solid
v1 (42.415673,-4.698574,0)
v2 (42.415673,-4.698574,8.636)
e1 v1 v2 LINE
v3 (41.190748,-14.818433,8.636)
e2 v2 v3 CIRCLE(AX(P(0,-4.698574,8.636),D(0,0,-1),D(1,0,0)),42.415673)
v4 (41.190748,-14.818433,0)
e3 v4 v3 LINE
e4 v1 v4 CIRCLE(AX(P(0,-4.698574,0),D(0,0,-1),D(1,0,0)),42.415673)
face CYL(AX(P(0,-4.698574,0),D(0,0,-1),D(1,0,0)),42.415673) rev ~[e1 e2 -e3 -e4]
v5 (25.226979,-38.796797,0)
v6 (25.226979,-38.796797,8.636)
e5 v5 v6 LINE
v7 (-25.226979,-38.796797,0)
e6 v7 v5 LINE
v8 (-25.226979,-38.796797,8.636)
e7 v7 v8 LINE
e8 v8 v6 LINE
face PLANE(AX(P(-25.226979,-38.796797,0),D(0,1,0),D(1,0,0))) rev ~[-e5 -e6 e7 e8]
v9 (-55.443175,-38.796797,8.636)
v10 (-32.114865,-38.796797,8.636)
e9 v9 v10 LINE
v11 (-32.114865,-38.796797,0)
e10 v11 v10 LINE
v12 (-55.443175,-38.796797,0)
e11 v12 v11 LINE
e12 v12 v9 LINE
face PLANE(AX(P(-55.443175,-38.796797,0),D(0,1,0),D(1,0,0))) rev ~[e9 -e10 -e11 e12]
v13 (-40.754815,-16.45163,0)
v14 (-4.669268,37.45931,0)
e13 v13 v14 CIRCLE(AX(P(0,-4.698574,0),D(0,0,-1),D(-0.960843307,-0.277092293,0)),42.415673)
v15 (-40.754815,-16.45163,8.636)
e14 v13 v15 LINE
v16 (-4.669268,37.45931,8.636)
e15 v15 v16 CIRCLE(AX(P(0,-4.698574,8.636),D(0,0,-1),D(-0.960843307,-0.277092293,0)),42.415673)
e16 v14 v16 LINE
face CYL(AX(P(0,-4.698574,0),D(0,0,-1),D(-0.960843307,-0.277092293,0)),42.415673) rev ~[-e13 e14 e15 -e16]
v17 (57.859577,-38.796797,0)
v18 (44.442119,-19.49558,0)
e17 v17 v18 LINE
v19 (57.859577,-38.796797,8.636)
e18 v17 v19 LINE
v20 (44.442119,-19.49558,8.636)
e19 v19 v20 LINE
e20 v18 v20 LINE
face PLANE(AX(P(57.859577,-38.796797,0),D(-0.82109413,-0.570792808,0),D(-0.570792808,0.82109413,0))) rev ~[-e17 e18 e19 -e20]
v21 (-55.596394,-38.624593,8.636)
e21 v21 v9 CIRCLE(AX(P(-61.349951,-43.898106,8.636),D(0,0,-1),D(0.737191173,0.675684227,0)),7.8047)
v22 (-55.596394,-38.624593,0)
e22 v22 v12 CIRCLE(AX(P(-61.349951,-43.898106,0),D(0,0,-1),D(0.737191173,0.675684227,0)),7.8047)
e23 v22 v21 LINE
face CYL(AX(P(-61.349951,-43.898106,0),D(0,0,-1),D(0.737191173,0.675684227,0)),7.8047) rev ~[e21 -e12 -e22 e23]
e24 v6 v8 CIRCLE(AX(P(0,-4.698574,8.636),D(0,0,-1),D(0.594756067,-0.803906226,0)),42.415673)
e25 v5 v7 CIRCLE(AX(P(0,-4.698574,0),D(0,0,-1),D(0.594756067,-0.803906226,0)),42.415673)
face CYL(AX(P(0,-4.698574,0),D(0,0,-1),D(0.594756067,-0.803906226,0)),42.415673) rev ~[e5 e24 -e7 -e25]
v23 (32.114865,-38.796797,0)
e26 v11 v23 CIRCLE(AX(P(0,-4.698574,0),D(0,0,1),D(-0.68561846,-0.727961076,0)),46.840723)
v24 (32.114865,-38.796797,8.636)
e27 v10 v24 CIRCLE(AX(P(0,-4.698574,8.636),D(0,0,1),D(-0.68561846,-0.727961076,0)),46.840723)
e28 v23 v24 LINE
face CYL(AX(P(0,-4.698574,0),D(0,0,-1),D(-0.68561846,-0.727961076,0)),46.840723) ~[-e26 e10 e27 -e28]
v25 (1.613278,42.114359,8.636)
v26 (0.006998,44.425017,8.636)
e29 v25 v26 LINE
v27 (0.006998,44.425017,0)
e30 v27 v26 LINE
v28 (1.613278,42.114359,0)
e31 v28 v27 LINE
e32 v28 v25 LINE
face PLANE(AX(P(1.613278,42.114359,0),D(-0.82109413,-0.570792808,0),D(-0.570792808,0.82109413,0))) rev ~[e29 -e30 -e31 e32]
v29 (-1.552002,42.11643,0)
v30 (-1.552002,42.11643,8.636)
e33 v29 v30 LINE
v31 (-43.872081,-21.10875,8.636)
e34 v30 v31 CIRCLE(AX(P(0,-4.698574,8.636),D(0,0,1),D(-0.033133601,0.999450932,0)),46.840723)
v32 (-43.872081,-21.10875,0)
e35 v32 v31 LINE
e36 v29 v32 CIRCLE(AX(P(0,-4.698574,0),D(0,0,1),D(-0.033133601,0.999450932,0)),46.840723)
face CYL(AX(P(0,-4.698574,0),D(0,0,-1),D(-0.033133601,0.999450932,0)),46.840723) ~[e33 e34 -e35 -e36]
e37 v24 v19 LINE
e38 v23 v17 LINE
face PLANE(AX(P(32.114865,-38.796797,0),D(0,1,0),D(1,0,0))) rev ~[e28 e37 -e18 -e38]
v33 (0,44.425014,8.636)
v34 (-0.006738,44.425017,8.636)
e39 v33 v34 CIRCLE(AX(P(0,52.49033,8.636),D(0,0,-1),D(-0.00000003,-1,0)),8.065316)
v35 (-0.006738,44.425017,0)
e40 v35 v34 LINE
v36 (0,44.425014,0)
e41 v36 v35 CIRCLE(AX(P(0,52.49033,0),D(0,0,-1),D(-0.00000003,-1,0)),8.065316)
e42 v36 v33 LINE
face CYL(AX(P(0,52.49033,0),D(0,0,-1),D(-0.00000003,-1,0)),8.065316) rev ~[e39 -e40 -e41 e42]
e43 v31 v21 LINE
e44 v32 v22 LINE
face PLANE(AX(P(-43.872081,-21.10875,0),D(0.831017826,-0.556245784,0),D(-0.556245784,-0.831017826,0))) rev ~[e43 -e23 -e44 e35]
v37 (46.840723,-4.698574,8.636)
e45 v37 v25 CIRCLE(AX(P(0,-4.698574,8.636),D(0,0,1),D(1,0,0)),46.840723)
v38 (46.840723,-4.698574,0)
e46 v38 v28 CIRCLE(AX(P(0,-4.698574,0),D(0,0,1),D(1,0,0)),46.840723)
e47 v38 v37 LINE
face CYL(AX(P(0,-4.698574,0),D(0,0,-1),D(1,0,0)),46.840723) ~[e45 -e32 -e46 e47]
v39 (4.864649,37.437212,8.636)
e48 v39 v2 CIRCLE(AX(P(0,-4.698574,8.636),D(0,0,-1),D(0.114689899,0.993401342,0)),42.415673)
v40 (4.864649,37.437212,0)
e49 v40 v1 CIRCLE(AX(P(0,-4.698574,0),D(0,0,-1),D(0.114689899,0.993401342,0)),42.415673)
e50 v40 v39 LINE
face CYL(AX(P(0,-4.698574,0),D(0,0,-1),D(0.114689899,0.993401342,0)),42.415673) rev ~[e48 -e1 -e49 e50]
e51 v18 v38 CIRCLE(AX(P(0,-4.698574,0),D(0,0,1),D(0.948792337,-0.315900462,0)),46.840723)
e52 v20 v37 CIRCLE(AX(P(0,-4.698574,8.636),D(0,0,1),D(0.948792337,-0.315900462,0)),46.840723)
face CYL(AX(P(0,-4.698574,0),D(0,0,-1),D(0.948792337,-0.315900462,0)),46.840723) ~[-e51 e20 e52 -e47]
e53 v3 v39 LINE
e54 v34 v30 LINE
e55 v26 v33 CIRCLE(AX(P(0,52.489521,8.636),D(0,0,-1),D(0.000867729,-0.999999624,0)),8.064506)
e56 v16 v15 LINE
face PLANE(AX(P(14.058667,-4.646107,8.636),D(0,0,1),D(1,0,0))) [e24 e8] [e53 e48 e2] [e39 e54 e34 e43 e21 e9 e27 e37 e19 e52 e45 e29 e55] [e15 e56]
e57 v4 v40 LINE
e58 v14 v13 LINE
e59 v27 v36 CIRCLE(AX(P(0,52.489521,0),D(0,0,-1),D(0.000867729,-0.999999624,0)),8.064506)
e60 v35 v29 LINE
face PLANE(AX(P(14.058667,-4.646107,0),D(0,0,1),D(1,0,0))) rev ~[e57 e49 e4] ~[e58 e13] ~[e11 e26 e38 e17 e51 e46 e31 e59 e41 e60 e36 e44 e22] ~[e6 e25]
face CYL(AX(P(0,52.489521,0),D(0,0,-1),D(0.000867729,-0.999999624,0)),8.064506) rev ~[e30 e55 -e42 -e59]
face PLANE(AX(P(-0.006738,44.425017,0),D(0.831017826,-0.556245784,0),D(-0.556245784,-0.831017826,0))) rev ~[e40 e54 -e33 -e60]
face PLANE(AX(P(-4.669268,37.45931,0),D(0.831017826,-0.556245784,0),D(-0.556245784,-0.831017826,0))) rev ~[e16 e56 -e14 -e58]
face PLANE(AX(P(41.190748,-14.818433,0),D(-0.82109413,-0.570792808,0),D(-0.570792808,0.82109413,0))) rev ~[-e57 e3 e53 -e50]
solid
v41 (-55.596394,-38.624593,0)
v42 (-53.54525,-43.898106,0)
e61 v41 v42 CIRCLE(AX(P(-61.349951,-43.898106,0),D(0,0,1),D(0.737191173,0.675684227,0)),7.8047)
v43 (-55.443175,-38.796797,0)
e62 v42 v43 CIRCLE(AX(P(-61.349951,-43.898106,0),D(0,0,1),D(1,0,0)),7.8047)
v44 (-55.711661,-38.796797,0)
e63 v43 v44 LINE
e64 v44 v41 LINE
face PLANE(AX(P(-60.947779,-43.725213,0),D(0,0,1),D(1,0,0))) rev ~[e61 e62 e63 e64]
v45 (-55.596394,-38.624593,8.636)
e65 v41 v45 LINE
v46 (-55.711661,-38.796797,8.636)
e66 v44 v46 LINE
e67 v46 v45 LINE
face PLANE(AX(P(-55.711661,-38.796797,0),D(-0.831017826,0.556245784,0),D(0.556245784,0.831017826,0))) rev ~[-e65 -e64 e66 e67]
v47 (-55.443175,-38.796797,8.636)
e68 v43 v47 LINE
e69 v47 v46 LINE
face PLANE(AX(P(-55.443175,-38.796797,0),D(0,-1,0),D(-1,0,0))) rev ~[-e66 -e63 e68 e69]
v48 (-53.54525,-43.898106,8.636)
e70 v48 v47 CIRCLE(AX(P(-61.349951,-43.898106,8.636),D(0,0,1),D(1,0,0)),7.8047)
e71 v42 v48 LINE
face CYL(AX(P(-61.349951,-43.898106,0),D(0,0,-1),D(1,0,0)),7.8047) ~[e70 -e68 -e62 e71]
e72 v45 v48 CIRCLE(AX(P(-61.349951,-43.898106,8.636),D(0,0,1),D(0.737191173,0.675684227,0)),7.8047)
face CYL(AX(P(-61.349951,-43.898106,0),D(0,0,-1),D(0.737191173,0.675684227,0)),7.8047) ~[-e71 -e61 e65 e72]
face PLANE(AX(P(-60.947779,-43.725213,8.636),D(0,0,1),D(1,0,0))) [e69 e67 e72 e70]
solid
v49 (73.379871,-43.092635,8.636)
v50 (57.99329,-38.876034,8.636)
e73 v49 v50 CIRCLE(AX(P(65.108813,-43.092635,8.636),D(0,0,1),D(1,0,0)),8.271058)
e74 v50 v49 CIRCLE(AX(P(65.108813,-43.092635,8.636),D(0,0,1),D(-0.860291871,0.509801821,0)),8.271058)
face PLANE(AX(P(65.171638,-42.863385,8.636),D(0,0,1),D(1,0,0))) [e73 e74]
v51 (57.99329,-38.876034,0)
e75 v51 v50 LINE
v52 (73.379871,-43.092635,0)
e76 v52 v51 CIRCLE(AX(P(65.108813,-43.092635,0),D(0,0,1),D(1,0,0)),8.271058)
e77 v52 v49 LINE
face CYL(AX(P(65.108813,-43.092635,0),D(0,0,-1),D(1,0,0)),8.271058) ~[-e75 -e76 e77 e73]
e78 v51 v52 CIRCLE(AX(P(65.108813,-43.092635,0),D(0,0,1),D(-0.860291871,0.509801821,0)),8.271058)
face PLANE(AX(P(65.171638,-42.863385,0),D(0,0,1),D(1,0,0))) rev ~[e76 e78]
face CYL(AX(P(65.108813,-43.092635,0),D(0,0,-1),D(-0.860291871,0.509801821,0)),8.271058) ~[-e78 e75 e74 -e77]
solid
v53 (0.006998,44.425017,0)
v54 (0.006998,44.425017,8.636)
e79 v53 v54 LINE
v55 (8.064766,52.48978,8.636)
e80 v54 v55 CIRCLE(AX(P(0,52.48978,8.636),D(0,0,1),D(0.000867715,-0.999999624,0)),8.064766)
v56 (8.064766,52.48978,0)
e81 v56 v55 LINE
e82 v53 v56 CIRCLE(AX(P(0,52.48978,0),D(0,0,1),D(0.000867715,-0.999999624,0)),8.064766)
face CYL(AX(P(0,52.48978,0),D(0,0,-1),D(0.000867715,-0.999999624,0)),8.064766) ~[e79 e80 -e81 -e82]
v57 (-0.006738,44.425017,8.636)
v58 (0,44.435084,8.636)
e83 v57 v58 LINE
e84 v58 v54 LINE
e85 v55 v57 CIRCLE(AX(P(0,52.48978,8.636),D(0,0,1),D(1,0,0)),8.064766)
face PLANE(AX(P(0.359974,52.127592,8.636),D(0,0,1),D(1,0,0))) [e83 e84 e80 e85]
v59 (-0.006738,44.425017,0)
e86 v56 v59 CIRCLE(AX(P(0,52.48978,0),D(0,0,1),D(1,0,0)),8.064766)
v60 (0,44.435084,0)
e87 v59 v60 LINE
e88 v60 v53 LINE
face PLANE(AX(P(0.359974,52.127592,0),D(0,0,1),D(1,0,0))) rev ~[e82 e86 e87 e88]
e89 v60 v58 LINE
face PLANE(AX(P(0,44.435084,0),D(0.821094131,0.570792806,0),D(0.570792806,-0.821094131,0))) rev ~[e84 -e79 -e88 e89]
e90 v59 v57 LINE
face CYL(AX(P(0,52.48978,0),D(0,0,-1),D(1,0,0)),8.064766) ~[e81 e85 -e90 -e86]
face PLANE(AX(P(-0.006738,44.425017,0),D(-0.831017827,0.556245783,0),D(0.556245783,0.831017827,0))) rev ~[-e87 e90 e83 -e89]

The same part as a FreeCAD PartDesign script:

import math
import FreeCAD as App
import Part
import Sketcher
from FreeCAD import Vector
Q = App.Units.Quantity

doc = App.newDocument("Part")
params = doc.addObject("Spreadsheet::Sheet", "Params")
for row, (alias, value) in enumerate([
    ("pad1_length", "0.34 in"),
    ("pad2_length", "0.34 in"),
    ("pad3_length", "0.34 in"),
    ("pad4_length", "0.34 in"),
], start=1):
    params.set(f"A{row}", alias)
    params.set(f"B{row}", "=" + value)
    params.setAlias(f"B{row}", alias)

body = doc.addObject("PartDesign::Body", "Body")

# Sketch on XY plane
sketch1 = doc.addObject("Sketcher::SketchObject", "Sketch")
body.addObject(sketch1)
sketch1.AttachmentSupport = (doc.XY_Plane, [""])
sketch1.MapMode = "FlatFace"
sketch1.addGeometry([
    Part.LineSegment(Vector(-43.872081, -21.10875, 0), Vector(-55.596394, -38.624593, 0)),  # 0
    Part.ArcOfCircle(Part.Circle(Vector(-61.349951, -43.898106, 0), Vector(0, 0, 1), 7.8047), math.radians(40.815093), math.radians(42.507307)),  # 1
    Part.LineSegment(Vector(-55.443175, -38.796797, 0), Vector(-32.114865, -38.796797, 0)),  # 2
    Part.ArcOfCircle(Part.Circle(Vector(0, -4.698574, 0), Vector(0, 0, 1), 46.840723), math.radians(-133.284265), math.radians(-46.715735)),  # 3
    Part.LineSegment(Vector(32.114865, -38.796797, 0), Vector(57.859577, -38.796797, 0)),  # 4
    Part.LineSegment(Vector(57.859577, -38.796797, 0), Vector(44.442119, -19.49558, 0)),  # 5
    Part.ArcOfCircle(Part.Circle(Vector(0, -4.698574, 0), Vector(0, 0, 1), 46.840723), math.radians(-18.415182), math.radians(0)),  # 6
    Part.ArcOfCircle(Part.Circle(Vector(0, -4.698574, 0), Vector(0, 0, 1), 46.840723), math.radians(0), math.radians(88.026241)),  # 7
    Part.LineSegment(Vector(1.613278, 42.114359, 0), Vector(0.006998, 44.425017, 0)),  # 8
    Part.ArcOfCircle(Part.Circle(Vector(0, 52.489521, 0), Vector(0, 0, 1), 8.064506), math.radians(-90.000001), math.radians(-89.950283)),  # 9
    Part.ArcOfCircle(Part.Circle(Vector(0, 52.49033, 0), Vector(0, 0, 1), 8.065316), math.radians(-90.04787), math.radians(-90.000002)),  # 10
    Part.LineSegment(Vector(-0.006738, 44.425017, 0), Vector(-1.552002, 42.11643, 0)),  # 11
    Part.ArcOfCircle(Part.Circle(Vector(0, -4.698574, 0), Vector(0, 0, 1), 46.840723), math.radians(91.898763), math.radians(200.508109)),  # 12
    Part.LineSegment(Vector(-4.669268, 37.45931, 0), Vector(-40.754815, -16.45163, 0)),  # 13
    Part.ArcOfCircle(Part.Circle(Vector(0, -4.698574, 0), Vector(0, 0, 1), 42.415673), math.radians(96.320132), math.radians(196.08674)),  # 14
    Part.ArcOfCircle(Part.Circle(Vector(0, -4.698574, 0), Vector(0, 0, 1), 42.415673), math.radians(-126.495245), math.radians(-53.504755)),  # 15
    Part.LineSegment(Vector(-25.226979, -38.796797, 0), Vector(25.226979, -38.796797, 0)),  # 16
    Part.ArcOfCircle(Part.Circle(Vector(0, -4.698574, 0), Vector(0, 0, 1), 42.415673), math.radians(-13.803202), math.radians(0)),  # 17
    Part.LineSegment(Vector(41.190748, -14.818433, 0), Vector(4.864649, 37.437212, 0)),  # 18
    Part.ArcOfCircle(Part.Circle(Vector(0, -4.698574, 0), Vector(0, 0, 1), 42.415673), math.radians(0), math.radians(83.414261)),  # 19
], False)
sketch1.addConstraint([
    Sketcher.Constraint("Coincident", 0, 2, 1, 2),
    Sketcher.Constraint("Coincident", 1, 1, 2, 1),
    Sketcher.Constraint("Coincident", 2, 2, 3, 1),
    Sketcher.Constraint("Coincident", 3, 2, 4, 1),
    Sketcher.Constraint("Coincident", 4, 2, 5, 1),
    Sketcher.Constraint("Coincident", 5, 2, 6, 1),
    Sketcher.Constraint("Coincident", 6, 2, 7, 1),
    Sketcher.Constraint("Coincident", 7, 2, 8, 1),
    Sketcher.Constraint("Coincident", 8, 2, 9, 2),
    Sketcher.Constraint("Coincident", 9, 1, 10, 2),
    Sketcher.Constraint("Coincident", 10, 1, 11, 1),
    Sketcher.Constraint("Coincident", 11, 2, 12, 1),
    Sketcher.Constraint("Coincident", 12, 2, 0, 1),
    Sketcher.Constraint("Coincident", 13, 1, 14, 1),
    Sketcher.Constraint("Coincident", 14, 2, 13, 2),
    Sketcher.Constraint("Coincident", 15, 1, 16, 1),
    Sketcher.Constraint("Coincident", 16, 2, 15, 2),
    Sketcher.Constraint("Coincident", 17, 1, 18, 1),
    Sketcher.Constraint("Coincident", 18, 2, 19, 2),
    Sketcher.Constraint("Coincident", 19, 1, 17, 2),
    Sketcher.Constraint("Horizontal", 2),
    Sketcher.Constraint("Horizontal", 4),
    Sketcher.Constraint("Horizontal", 16),
    Sketcher.Constraint("Coincident", 6, 3, 3, 3),
    Sketcher.Constraint("Coincident", 7, 3, 3, 3),
    Sketcher.Constraint("Coincident", 12, 3, 3, 3),
    Sketcher.Constraint("Coincident", 14, 3, 3, 3),
    Sketcher.Constraint("Coincident", 15, 3, 3, 3),
    Sketcher.Constraint("Coincident", 17, 3, 3, 3),
    Sketcher.Constraint("Coincident", 19, 3, 3, 3),
    Sketcher.Constraint("PointOnObject", 3, 3, -2),
    Sketcher.Constraint("PointOnObject", 9, 3, -2),
    Sketcher.Constraint("PointOnObject", 10, 3, -2),
    Sketcher.Constraint("PointOnObject", 9, 1, -2),
    Sketcher.Constraint("Radius", 1, 7.8047),
    Sketcher.Constraint("Radius", 3, 46.840723),
    Sketcher.Constraint("Radius", 6, 46.840723),
    Sketcher.Constraint("Radius", 9, 8.064506),
    Sketcher.Constraint("Radius", 10, 8.065316),
    Sketcher.Constraint("Radius", 12, 46.840723),
    Sketcher.Constraint("Radius", 14, 42.415673),
    Sketcher.Constraint("Radius", 15, 42.415673),
    Sketcher.Constraint("Radius", 17, 42.415673),
    Sketcher.Constraint("DistanceY", 0, 2, 12, 2, Q("0.6896001 in")),
    Sketcher.Constraint("DistanceX", 2, 1, 2, 2, 23.32831),
    Sketcher.Constraint("DistanceX", 11, 2, -1, 1, 1.552002),
    Sketcher.Constraint("DistanceX", 11, 2, 8, 2, 1.559),
    Sketcher.Constraint("DistanceX", 16, 2, 4, 2, 32.632599),
    Sketcher.Constraint("Distance", 8, 2.814121),
    Sketcher.Constraint("Distance", 18, 63.64148),
    Sketcher.Constraint("DistanceX", 4, 1, 4, 2, 25.744713),
    Sketcher.Constraint("DistanceX", 16, 1, 16, 2, 50.453957),
    Sketcher.Constraint("DistanceX", 1, 3, -1, 1, 61.349951),
    Sketcher.Constraint("DistanceY", -1, 1, 9, 3, 52.489521),
    Sketcher.Constraint("DistanceX", -1, 1, 5, 2, 44.442119),
    Sketcher.Constraint("DistanceY", 5, 2, -1, 1, 19.49558),
    Sketcher.Constraint("DistanceX", 10, 1, -1, 1, 0.006738),
    Sketcher.Constraint("DistanceX", 12, 2, -1, 1, 43.872081),
    Sketcher.Constraint("DistanceY", -1, 1, 13, 1, 37.45931),
    Sketcher.Constraint("DistanceY", 14, 2, -1, 1, 16.45163),
    Sketcher.Constraint("DistanceX", -1, 1, 17, 1, 41.190748),
    Sketcher.Constraint("DistanceY", 1, 3, 3, 3, 39.199531),
    Sketcher.Constraint("DistanceY", 17, 1, 6, 2, 10.119859),
    Sketcher.Constraint("DistanceY", 17, 1, 19, 1, 10.119859),
])
pad1 = doc.addObject("PartDesign::Pad", "Pad")
body.addObject(pad1)
pad1.Profile = sketch1
pad1.setExpression("Length", "Params.pad1_length")
body2 = doc.addObject("PartDesign::Body", "Body001")

# Sketch on XY plane
sketch2 = doc.addObject("Sketcher::SketchObject", "Sketch001")
body2.addObject(sketch2)
sketch2.AttachmentSupport = (doc.getObject("XY_Plane001"), [""])
sketch2.MapMode = "FlatFace"
sketch2.addGeometry([
    Part.ArcOfCircle(Part.Circle(Vector(0, 52.49, 0), Vector(0, 0, 1), 8.065), math.radians(0), math.radians(270)),
    Part.LineSegment(Vector(-0.007, 44.425, 0), Vector(0, 44.435, 0)),
    Part.LineSegment(Vector(0, 44.435, 0), Vector(0.007, 44.425, 0)),
    Part.ArcOfCircle(Part.Circle(Vector(0, 52.49, 0), Vector(0, 0, 1), 8.065), math.radians(-90), math.radians(0)),
], False)
sketch2.addConstraint([
    Sketcher.Constraint("Coincident", 0, 2, 1, 1),
    Sketcher.Constraint("Coincident", 1, 2, 2, 1),
    Sketcher.Constraint("Coincident", 2, 2, 3, 1),
    Sketcher.Constraint("Tangent", 3, 2, 0, 1),
    Sketcher.Constraint("Equal", 0, 3),
    Sketcher.Constraint("PointOnObject", 0, 3, -2),
    Sketcher.Constraint("PointOnObject", 1, 2, -2),
    Sketcher.Constraint("Horizontal", 0, 3, 3, 2),
    Sketcher.Constraint("Radius", 0, 8.064766),
    Sketcher.Constraint("Distance", 2, 0.01226),
    Sketcher.Constraint("DistanceY", -1, 1, 0, 3, 52.48978),
    Sketcher.Constraint("DistanceX", 0, 2, -1, 1, 0.006738),
    Sketcher.Constraint("Distance", 1, 0.012114),
])
pad2 = doc.addObject("PartDesign::Pad", "Pad001")
body2.addObject(pad2)
pad2.Profile = sketch2
pad2.setExpression("Length", "Params.pad2_length")
body3 = doc.addObject("PartDesign::Body", "Body002")

# Sketch on XY plane
sketch3 = doc.addObject("Sketcher::SketchObject", "Sketch002")
body3.addObject(sketch3)
sketch3.AttachmentSupport = (doc.getObject("XY_Plane002"), [""])
sketch3.MapMode = "FlatFace"
sketch3.addGeometry([
    Part.ArcOfCircle(Part.Circle(Vector(65, -43, 0), Vector(0, 0, 1), 8), math.radians(0), math.radians(149)),
    Part.ArcOfCircle(Part.Circle(Vector(65, -43, 0), Vector(0, 0, 1), 8), math.radians(149), math.radians(360)),
], False)
sketch3.addConstraint([
    Sketcher.Constraint("Tangent", 0, 1, 1, 2),
    Sketcher.Constraint("Coincident", 1, 1, 0, 2),
    Sketcher.Constraint("Horizontal", 1, 3, 0, 1),
    Sketcher.Constraint("Radius", 0, 8.271058),
    Sketcher.Constraint("DistanceY", 0, 3, 1, 1, 4.2166),
    Sketcher.Constraint("DistanceX", -1, 1, 0, 1, 73.379871),
    Sketcher.Constraint("DistanceY", 0, 3, -1, 1, 43.092635),
])
pad3 = doc.addObject("PartDesign::Pad", "Pad002")
body3.addObject(pad3)
pad3.Profile = sketch3
pad3.setExpression("Length", "Params.pad3_length")
body4 = doc.addObject("PartDesign::Body", "Body003")

# Sketch on XY plane
sketch4 = doc.addObject("Sketcher::SketchObject", "Sketch003")
body4.addObject(sketch4)
sketch4.AttachmentSupport = (doc.getObject("XY_Plane003"), [""])
sketch4.MapMode = "FlatFace"
sketch4.addGeometry([
    Part.LineSegment(Vector(-55.44, -38.8, 0), Vector(-55.71, -38.8, 0)),
    Part.LineSegment(Vector(-55.71, -38.8, 0), Vector(-55.6, -38.62, 0)),
    Part.ArcOfCircle(Part.Circle(Vector(-61.35, -43.9, 0), Vector(0, 0, 1), 7.8), math.radians(43), math.radians(360)),
    Part.ArcOfCircle(Part.Circle(Vector(-61.35, -43.9, 0), Vector(0, 0, 1), 7.8), math.radians(0), math.radians(41)),
], False)
sketch4.addConstraint([
    Sketcher.Constraint("Coincident", 0, 2, 1, 1),
    Sketcher.Constraint("Coincident", 1, 2, 2, 1),
    Sketcher.Constraint("Tangent", 2, 2, 3, 1),
    Sketcher.Constraint("Coincident", 3, 2, 0, 1),
    Sketcher.Constraint("Horizontal", 0),
    Sketcher.Constraint("Equal", 2, 3),
    Sketcher.Constraint("Horizontal", 3, 3, 2, 2),
    Sketcher.Constraint("Radius", 2, 7.8047),
    Sketcher.Constraint("Distance", 1, 0.207222),
    Sketcher.Constraint("DistanceX", 0, 2, 0, 1, 0.268486),
    Sketcher.Constraint("DistanceX", 2, 3, -1, 1, 61.349951),
    Sketcher.Constraint("DistanceX", 0, 2, -1, 1, 55.711661),
    Sketcher.Constraint("DistanceY", 2, 3, -1, 1, 43.898106),
])
pad4 = doc.addObject("PartDesign::Pad", "Pad003")
body4.addObject(pad4)
pad4.Profile = sketch4
pad4.setExpression("Length", "Params.pad4_length")

doc.recompute()
